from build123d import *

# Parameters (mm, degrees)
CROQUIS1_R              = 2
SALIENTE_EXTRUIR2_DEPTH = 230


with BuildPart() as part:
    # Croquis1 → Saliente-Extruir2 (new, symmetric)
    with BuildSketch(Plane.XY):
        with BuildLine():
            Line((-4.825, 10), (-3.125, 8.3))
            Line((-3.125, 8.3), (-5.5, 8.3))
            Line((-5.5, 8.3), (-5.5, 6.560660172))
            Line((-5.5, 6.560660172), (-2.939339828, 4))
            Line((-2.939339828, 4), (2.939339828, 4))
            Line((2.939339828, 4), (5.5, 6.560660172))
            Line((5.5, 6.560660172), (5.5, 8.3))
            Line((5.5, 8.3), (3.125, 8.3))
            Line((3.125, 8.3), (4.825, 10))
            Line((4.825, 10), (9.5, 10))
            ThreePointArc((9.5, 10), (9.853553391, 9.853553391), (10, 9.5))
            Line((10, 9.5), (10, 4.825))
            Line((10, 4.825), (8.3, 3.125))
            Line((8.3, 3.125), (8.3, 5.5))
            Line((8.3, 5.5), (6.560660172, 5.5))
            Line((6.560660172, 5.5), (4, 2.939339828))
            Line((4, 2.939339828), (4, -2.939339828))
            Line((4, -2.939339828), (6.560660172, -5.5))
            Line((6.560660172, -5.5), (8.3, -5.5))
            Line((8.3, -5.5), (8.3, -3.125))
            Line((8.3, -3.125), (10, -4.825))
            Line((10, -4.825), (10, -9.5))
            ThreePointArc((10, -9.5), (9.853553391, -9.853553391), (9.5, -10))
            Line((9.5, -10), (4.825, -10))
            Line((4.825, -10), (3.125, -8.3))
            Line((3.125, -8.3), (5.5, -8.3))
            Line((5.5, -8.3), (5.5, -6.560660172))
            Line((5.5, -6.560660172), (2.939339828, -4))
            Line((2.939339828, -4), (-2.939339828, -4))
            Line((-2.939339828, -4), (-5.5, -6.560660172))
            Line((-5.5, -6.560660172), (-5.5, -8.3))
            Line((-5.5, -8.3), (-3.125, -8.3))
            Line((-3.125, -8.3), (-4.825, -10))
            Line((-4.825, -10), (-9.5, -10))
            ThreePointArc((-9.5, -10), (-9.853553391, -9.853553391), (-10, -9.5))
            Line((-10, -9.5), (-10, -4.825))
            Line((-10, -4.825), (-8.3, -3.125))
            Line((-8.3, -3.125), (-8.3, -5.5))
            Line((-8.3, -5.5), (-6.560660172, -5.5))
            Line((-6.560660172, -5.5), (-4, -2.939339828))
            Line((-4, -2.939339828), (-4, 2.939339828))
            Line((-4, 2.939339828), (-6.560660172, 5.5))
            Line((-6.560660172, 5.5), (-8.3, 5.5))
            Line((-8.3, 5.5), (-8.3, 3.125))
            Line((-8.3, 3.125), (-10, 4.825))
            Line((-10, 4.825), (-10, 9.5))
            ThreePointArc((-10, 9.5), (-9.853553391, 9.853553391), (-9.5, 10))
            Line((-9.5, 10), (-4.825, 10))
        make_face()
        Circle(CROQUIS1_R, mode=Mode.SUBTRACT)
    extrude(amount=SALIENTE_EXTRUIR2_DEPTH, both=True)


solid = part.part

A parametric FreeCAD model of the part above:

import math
import FreeCAD as App
import Part
import Sketcher

V = App.Vector

doc = App.newDocument("Part")
params = doc.addObject("Spreadsheet::Sheet", "Params")
for row, (alias, value) in enumerate([
    ("sketch1_diameter", "4 mm"),
    ("sketch1_radius", "0.5 mm"),
    ("pad1_length", "460 mm"),
], start=1):
    params.set(f"A{row}", alias)
    params.set(f"B{row}", "=" + value)
    params.setAlias(f"B{row}", alias)

body = doc.addObject("PartDesign::Body", "Body")

sketch1 = body.newObject("Sketcher::SketchObject", "Sketch")
sketch1.AttachmentSupport = (doc.getObject("XY_Plane"), [""])
sketch1.MapMode = "FlatFace"
sketch1.addGeometry(Part.LineSegment(V(-3.12, 8.3, 0), V(-4.83, 10, 0)), False)
sketch1.addGeometry(Part.LineSegment(V(-4.83, 10, 0), V(-9.5, 10, 0)), False)
sketch1.addGeometry(Part.ArcOfCircle(Part.Circle(V(-9.5, 9.5, 0), V(0, 0, 1), 0.5), math.radians(90), math.radians(180)), False)
sketch1.addGeometry(Part.LineSegment(V(-10, 9.5, 0), V(-10, 4.83, 0)), False)
sketch1.addGeometry(Part.LineSegment(V(-10, 4.83, 0), V(-8.3, 3.12, 0)), False)
sketch1.addGeometry(Part.LineSegment(V(-8.3, 3.12, 0), V(-8.3, 5.5, 0)), False)
sketch1.addGeometry(Part.LineSegment(V(-8.3, 5.5, 0), V(-6.56, 5.5, 0)), False)
sketch1.addGeometry(Part.LineSegment(V(-6.56, 5.5, 0), V(-4, 2.94, 0)), False)
sketch1.addGeometry(Part.LineSegment(V(-4, 2.94, 0), V(-4, -2.94, 0)), False)
sketch1.addGeometry(Part.LineSegment(V(-4, -2.94, 0), V(-6.56, -5.5, 0)), False)
sketch1.addGeometry(Part.LineSegment(V(-6.56, -5.5, 0), V(-8.3, -5.5, 0)), False)
sketch1.addGeometry(Part.LineSegment(V(-8.3, -5.5, 0), V(-8.3, -3.12, 0)), False)
sketch1.addGeometry(Part.LineSegment(V(-8.3, -3.12, 0), V(-10, -4.83, 0)), False)
sketch1.addGeometry(Part.LineSegment(V(-10, -4.83, 0), V(-10, -9.5, 0)), False)
sketch1.addGeometry(Part.ArcOfCircle(Part.Circle(V(-9.5, -9.5, 0), V(0, 0, 1), 0.5), math.radians(180), math.radians(270)), False)
sketch1.addGeometry(Part.LineSegment(V(-9.5, -10, 0), V(-4.83, -10, 0)), False)
sketch1.addGeometry(Part.LineSegment(V(-4.83, -10, 0), V(-3.12, -8.3, 0)), False)
sketch1.addGeometry(Part.LineSegment(V(-3.12, -8.3, 0), V(-5.5, -8.3, 0)), False)
sketch1.addGeometry(Part.LineSegment(V(-5.5, -8.3, 0), V(-5.5, -6.56, 0)), False)
sketch1.addGeometry(Part.LineSegment(V(-5.5, -6.56, 0), V(-2.94, -4, 0)), False)
sketch1.addGeometry(Part.LineSegment(V(-2.94, -4, 0), V(2.94, -4, 0)), False)
sketch1.addGeometry(Part.LineSegment(V(2.94, -4, 0), V(5.5, -6.56, 0)), False)
sketch1.addGeometry(Part.LineSegment(V(5.5, -6.56, 0), V(5.5, -8.3, 0)), False)
sketch1.addGeometry(Part.LineSegment(V(5.5, -8.3, 0), V(3.12, -8.3, 0)), False)
sketch1.addGeometry(Part.LineSegment(V(3.12, -8.3, 0), V(4.83, -10, 0)), False)
sketch1.addGeometry(Part.LineSegment(V(4.83, -10, 0), V(9.5, -10, 0)), False)
sketch1.addGeometry(Part.ArcOfCircle(Part.Circle(V(9.5, -9.5, 0), V(0, 0, 1), 0.5), math.radians(-90), math.radians(0)), False)
sketch1.addGeometry(Part.LineSegment(V(10, -9.5, 0), V(10, -4.83, 0)), False)
sketch1.addGeometry(Part.LineSegment(V(10, -4.83, 0), V(8.3, -3.12, 0)), False)
sketch1.addGeometry(Part.LineSegment(V(8.3, -3.12, 0), V(8.3, -5.5, 0)), False)
sketch1.addGeometry(Part.LineSegment(V(8.3, -5.5, 0), V(6.56, -5.5, 0)), False)
sketch1.addGeometry(Part.LineSegment(V(6.56, -5.5, 0), V(4, -2.94, 0)), False)
sketch1.addGeometry(Part.LineSegment(V(4, -2.94, 0), V(4, 2.94, 0)), False)
sketch1.addGeometry(Part.LineSegment(V(4, 2.94, 0), V(6.56, 5.5, 0)), False)
sketch1.addGeometry(Part.LineSegment(V(6.56, 5.5, 0), V(8.3, 5.5, 0)), False)
sketch1.addGeometry(Part.LineSegment(V(8.3, 5.5, 0), V(8.3, 3.12, 0)), False)
sketch1.addGeometry(Part.LineSegment(V(8.3, 3.12, 0), V(10, 4.83, 0)), False)
sketch1.addGeometry(Part.LineSegment(V(10, 4.83, 0), V(10, 9.5, 0)), False)
sketch1.addGeometry(Part.ArcOfCircle(Part.Circle(V(9.5, 9.5, 0), V(0, 0, 1), 0.5), math.radians(0), math.radians(90)), False)
sketch1.addGeometry(Part.LineSegment(V(9.5, 10, 0), V(4.83, 10, 0)), False)
sketch1.addGeometry(Part.LineSegment(V(4.83, 10, 0), V(3.12, 8.3, 0)), False)
sketch1.addGeometry(Part.LineSegment(V(3.12, 8.3, 0), V(5.5, 8.3, 0)), False)
sketch1.addGeometry(Part.LineSegment(V(5.5, 8.3, 0), V(5.5, 6.56, 0)), False)
sketch1.addGeometry(Part.LineSegment(V(5.5, 6.56, 0), V(2.94, 4, 0)), False)
sketch1.addGeometry(Part.LineSegment(V(2.94, 4, 0), V(-2.94, 4, 0)), False)
sketch1.addGeometry(Part.LineSegment(V(-2.94, 4, 0), V(-5.5, 6.56, 0)), False)
sketch1.addGeometry(Part.LineSegment(V(-5.5, 6.56, 0), V(-5.5, 8.3, 0)), False)
sketch1.addGeometry(Part.LineSegment(V(-5.5, 8.3, 0), V(-3.12, 8.3, 0)), False)
sketch1.addGeometry(Part.Circle(V(0, 0, 0), V(0, 0, 1), 2), False)
sketch1.addConstraint(Sketcher.Constraint("Coincident", 0, 2, 1, 1))
sketch1.addConstraint(Sketcher.Constraint("Tangent", 1, 2, 2, 1))
sketch1.addConstraint(Sketcher.Constraint("Tangent", 2, 2, 3, 1))
sketch1.addConstraint(Sketcher.Constraint("Coincident", 3, 2, 4, 1))
sketch1.addConstraint(Sketcher.Constraint("Coincident", 4, 2, 5, 1))
sketch1.addConstraint(Sketcher.Constraint("Coincident", 5, 2, 6, 1))
sketch1.addConstraint(Sketcher.Constraint("Coincident", 6, 2, 7, 1))
sketch1.addConstraint(Sketcher.Constraint("Coincident", 7, 2, 8, 1))
sketch1.addConstraint(Sketcher.Constraint("Coincident", 8, 2, 9, 1))
sketch1.addConstraint(Sketcher.Constraint("Coincident", 9, 2, 10, 1))
sketch1.addConstraint(Sketcher.Constraint("Coincident", 10, 2, 11, 1))
sketch1.addConstraint(Sketcher.Constraint("Coincident", 11, 2, 12, 1))
sketch1.addConstraint(Sketcher.Constraint("Coincident", 12, 2, 13, 1))
sketch1.addConstraint(Sketcher.Constraint("Tangent", 13, 2, 14, 1))
sketch1.addConstraint(Sketcher.Constraint("Tangent", 14, 2, 15, 1))
sketch1.addConstraint(Sketcher.Constraint("Coincident", 15, 2, 16, 1))
sketch1.addConstraint(Sketcher.Constraint("Coincident", 16, 2, 17, 1))
sketch1.addConstraint(Sketcher.Constraint("Coincident", 17, 2, 18, 1))
sketch1.addConstraint(Sketcher.Constraint("Coincident", 18, 2, 19, 1))
sketch1.addConstraint(Sketcher.Constraint("Coincident", 19, 2, 20, 1))
sketch1.addConstraint(Sketcher.Constraint("Coincident", 20, 2, 21, 1))
sketch1.addConstraint(Sketcher.Constraint("Coincident", 21, 2, 22, 1))
sketch1.addConstraint(Sketcher.Constraint("Coincident", 22, 2, 23, 1))
sketch1.addConstraint(Sketcher.Constraint("Coincident", 23, 2, 24, 1))
sketch1.addConstraint(Sketcher.Constraint("Coincident", 24, 2, 25, 1))
sketch1.addConstraint(Sketcher.Constraint("Tangent", 25, 2, 26, 1))
sketch1.addConstraint(Sketcher.Constraint("Tangent", 26, 2, 27, 1))
sketch1.addConstraint(Sketcher.Constraint("Coincident", 27, 2, 28, 1))
sketch1.addConstraint(Sketcher.Constraint("Coincident", 28, 2, 29, 1))
sketch1.addConstraint(Sketcher.Constraint("Coincident", 29, 2, 30, 1))
sketch1.addConstraint(Sketcher.Constraint("Coincident", 30, 2, 31, 1))
sketch1.addConstraint(Sketcher.Constraint("Coincident", 31, 2, 32, 1))
sketch1.addConstraint(Sketcher.Constraint("Coincident", 32, 2, 33, 1))
sketch1.addConstraint(Sketcher.Constraint("Coincident", 33, 2, 34, 1))
sketch1.addConstraint(Sketcher.Constraint("Coincident", 34, 2, 35, 1))
sketch1.addConstraint(Sketcher.Constraint("Coincident", 35, 2, 36, 1))
sketch1.addConstraint(Sketcher.Constraint("Coincident", 36, 2, 37, 1))
sketch1.addConstraint(Sketcher.Constraint("Tangent", 37, 2, 38, 1))
sketch1.addConstraint(Sketcher.Constraint("Tangent", 38, 2, 39, 1))
sketch1.addConstraint(Sketcher.Constraint("Coincident", 39, 2, 40, 1))
sketch1.addConstraint(Sketcher.Constraint("Coincident", 40, 2, 41, 1))
sketch1.addConstraint(Sketcher.Constraint("Coincident", 41, 2, 42, 1))
sketch1.addConstraint(Sketcher.Constraint("Coincident", 42, 2, 43, 1))
sketch1.addConstraint(Sketcher.Constraint("Coincident", 43, 2, 44, 1))
sketch1.addConstraint(Sketcher.Constraint("Coincident", 44, 2, 45, 1))
sketch1.addConstraint(Sketcher.Constraint("Coincident", 45, 2, 46, 1))
sketch1.addConstraint(Sketcher.Constraint("Coincident", 46, 2, 47, 1))
sketch1.addConstraint(Sketcher.Constraint("Coincident", 47, 2, 0, 1))
sketch1.addConstraint(Sketcher.Constraint("Horizontal", 1))
sketch1.addConstraint(Sketcher.Constraint("Vertical", 3))
sketch1.addConstraint(Sketcher.Constraint("Vertical", 5))
sketch1.addConstraint(Sketcher.Constraint("Horizontal", 6))
sketch1.addConstraint(Sketcher.Constraint("Vertical", 8))
sketch1.addConstraint(Sketcher.Constraint("Horizontal", 10))
sketch1.addConstraint(Sketcher.Constraint("Vertical", 11))
sketch1.addConstraint(Sketcher.Constraint("Vertical", 13))
sketch1.addConstraint(Sketcher.Constraint("Horizontal", 15))
sketch1.addConstraint(Sketcher.Constraint("Horizontal", 17))
sketch1.addConstraint(Sketcher.Constraint("Vertical", 18))
sketch1.addConstraint(Sketcher.Constraint("Horizontal", 20))
sketch1.addConstraint(Sketcher.Constraint("Vertical", 22))
sketch1.addConstraint(Sketcher.Constraint("Horizontal", 23))
sketch1.addConstraint(Sketcher.Constraint("Horizontal", 25))
sketch1.addConstraint(Sketcher.Constraint("Vertical", 27))
sketch1.addConstraint(Sketcher.Constraint("Vertical", 29))
sketch1.addConstraint(Sketcher.Constraint("Horizontal", 30))
sketch1.addConstraint(Sketcher.Constraint("Vertical", 32))
sketch1.addConstraint(Sketcher.Constraint("Horizontal", 34))
sketch1.addConstraint(Sketcher.Constraint("Vertical", 35))
sketch1.addConstraint(Sketcher.Constraint("Vertical", 37))
sketch1.addConstraint(Sketcher.Constraint("Horizontal", 39))
sketch1.addConstraint(Sketcher.Constraint("Horizontal", 41))
sketch1.addConstraint(Sketcher.Constraint("Vertical", 42))
sketch1.addConstraint(Sketcher.Constraint("Horizontal", 44))
sketch1.addConstraint(Sketcher.Constraint("Vertical", 46))
sketch1.addConstraint(Sketcher.Constraint("Horizontal", 47))
sketch1.addConstraint(Sketcher.Constraint("Coincident", 48, 3, -1, 1))
sketch1.addConstraint(Sketcher.Constraint("Equal", 2, 14))
sketch1.addConstraint(Sketcher.Constraint("Equal", 14, 26))
sketch1.addConstraint(Sketcher.Constraint("Equal", 26, 38))
sketch1.addConstraint(Sketcher.Constraint("Symmetric", 2, 3, 26, 3, -1, 1))
sketch1.addConstraint(Sketcher.Constraint("Symmetric", 14, 3, 38, 3, -1, 1))
sketch1.addConstraint(Sketcher.Constraint("Symmetric", 4, 2, 28, 2, -1, 1))
sketch1.addConstraint(Sketcher.Constraint("Symmetric", 6, 2, 30, 2, -1, 1))
sketch1.addConstraint(Sketcher.Constraint("Symmetric", 7, 2, 31, 2, -1, 1))
sketch1.addConstraint(Sketcher.Constraint("Symmetric", 9, 2, 33, 2, -1, 1))
sketch1.addConstraint(Sketcher.Constraint("Symmetric", 11, 2, 35, 2, -1, 1))
sketch1.addConstraint(Sketcher.Constraint("Symmetric", 16, 2, 40, 2, -1, 1))
sketch1.addConstraint(Sketcher.Constraint("Symmetric", 18, 2, 42, 2, -1, 1))
sketch1.addConstraint(Sketcher.Constraint("Symmetric", 19, 2, 43, 2, -1, 1))
sketch1.addConstraint(Sketcher.Constraint("Symmetric", 21, 2, 45, 2, -1, 1))
sketch1.addConstraint(Sketcher.Constraint("Symmetric", 23, 2, 47, 2, -1, 1))
sketch1.addConstraint(Sketcher.Constraint("Symmetric", 14, 3, 26, 3, -2))
sketch1.addConstraint(Sketcher.Constraint("Symmetric", 18, 2, 21, 2, -2))
sketch1.addConstraint(Sketcher.Constraint("Symmetric", 16, 2, 23, 2, -2))
sketch1.addConstraint(Sketcher.Constraint("Symmetric", 11, 2, 28, 2, -2))
sketch1.addConstraint(Sketcher.Constraint("Symmetric", 9, 2, 30, 2, -2))
sketch1.addConstraint(Sketcher.Constraint("Parallel", 0, 4))
sketch1.addConstraint(Sketcher.Constraint("Parallel", 4, 7))
sketch1.addConstraint(Sketcher.Constraint("Perpendicular", 7, 9))
sketch1.addConstraint(Sketcher.Constraint("Parallel", 9, 12))
sketch1.addConstraint(Sketcher.Constraint("Parallel", 12, 16))
sketch1.addConstraint(Sketcher.Constraint("Parallel", 16, 19))
sketch1.addConstraint(Sketcher.Constraint("Perpendicular", 19, 21))
sketch1.addConstraint(Sketcher.Constraint("Parallel", 21, 24))
sketch1.addConstraint(Sketcher.Constraint("Parallel", 24, 28))
sketch1.addConstraint(Sketcher.Constraint("Perpendicular", 31, 33))
sketch1.addConstraint(Sketcher.Constraint("Parallel", 33, 36))
sketch1.addConstraint(Sketcher.Constraint("Parallel", 36, 40))
sketch1.addConstraint(Sketcher.Constraint("Perpendicular", 43, 45))
sketch1.addConstraint(Sketcher.Constraint("Horizontal", 12, 2, 27, 2))
sketch1.addConstraint(Sketcher.Constraint("Equal", 39, 3))
sketch1.addConstraint(Sketcher.Constraint("Equal", 47, 5))
sketch1.addConstraint(Sketcher.Constraint("Equal", 44, 8))
sketch1.addConstraint(Sketcher.Constraint("Equal", 34, 18))
sketch1.addConstraint(Sketcher.Constraint("Equal", 0, 4))
sketch1.addConstraint(Sketcher.Constraint("Equal", 9, 19))
sketch1.addConstraint(Sketcher.Constraint("Diameter", 48, 4.0))
sketch1.addConstraint(Sketcher.Constraint("Radius", 2, 0.5))
sketch1.addConstraint(Sketcher.Constraint("DistanceY", -1, 1, 0, 2, 10.0))
sketch1.addConstraint(Sketcher.Constraint("DistanceX", 7, 2, -1, 1, 4.0))
sketch1.addConstraint(Sketcher.Constraint("DistanceY", 5, 2, 2, 3, 4.0))
sketch1.addConstraint(Sketcher.Constraint("DistanceX", 4, 2, -1, 1, 8.3))
sketch1.addConstraint(Sketcher.Constraint("DistanceX", 1, 2, 1, 1, 4.675))
sketch1.addConstraint(Sketcher.Constraint("DistanceX", 6, 1, 6, 2, 1.73934))
sketch1.setExpression("Constraints[117]", "Params.sketch1_diameter")
sketch1.setExpression("Constraints[118]", "Params.sketch1_radius")
pad1 = body.newObject("PartDesign::Pad", "Pad")
pad1.Profile = sketch1
pad1.setExpression("Length", "Params.pad1_length")
pad1.Midplane = True

doc.recompute()
